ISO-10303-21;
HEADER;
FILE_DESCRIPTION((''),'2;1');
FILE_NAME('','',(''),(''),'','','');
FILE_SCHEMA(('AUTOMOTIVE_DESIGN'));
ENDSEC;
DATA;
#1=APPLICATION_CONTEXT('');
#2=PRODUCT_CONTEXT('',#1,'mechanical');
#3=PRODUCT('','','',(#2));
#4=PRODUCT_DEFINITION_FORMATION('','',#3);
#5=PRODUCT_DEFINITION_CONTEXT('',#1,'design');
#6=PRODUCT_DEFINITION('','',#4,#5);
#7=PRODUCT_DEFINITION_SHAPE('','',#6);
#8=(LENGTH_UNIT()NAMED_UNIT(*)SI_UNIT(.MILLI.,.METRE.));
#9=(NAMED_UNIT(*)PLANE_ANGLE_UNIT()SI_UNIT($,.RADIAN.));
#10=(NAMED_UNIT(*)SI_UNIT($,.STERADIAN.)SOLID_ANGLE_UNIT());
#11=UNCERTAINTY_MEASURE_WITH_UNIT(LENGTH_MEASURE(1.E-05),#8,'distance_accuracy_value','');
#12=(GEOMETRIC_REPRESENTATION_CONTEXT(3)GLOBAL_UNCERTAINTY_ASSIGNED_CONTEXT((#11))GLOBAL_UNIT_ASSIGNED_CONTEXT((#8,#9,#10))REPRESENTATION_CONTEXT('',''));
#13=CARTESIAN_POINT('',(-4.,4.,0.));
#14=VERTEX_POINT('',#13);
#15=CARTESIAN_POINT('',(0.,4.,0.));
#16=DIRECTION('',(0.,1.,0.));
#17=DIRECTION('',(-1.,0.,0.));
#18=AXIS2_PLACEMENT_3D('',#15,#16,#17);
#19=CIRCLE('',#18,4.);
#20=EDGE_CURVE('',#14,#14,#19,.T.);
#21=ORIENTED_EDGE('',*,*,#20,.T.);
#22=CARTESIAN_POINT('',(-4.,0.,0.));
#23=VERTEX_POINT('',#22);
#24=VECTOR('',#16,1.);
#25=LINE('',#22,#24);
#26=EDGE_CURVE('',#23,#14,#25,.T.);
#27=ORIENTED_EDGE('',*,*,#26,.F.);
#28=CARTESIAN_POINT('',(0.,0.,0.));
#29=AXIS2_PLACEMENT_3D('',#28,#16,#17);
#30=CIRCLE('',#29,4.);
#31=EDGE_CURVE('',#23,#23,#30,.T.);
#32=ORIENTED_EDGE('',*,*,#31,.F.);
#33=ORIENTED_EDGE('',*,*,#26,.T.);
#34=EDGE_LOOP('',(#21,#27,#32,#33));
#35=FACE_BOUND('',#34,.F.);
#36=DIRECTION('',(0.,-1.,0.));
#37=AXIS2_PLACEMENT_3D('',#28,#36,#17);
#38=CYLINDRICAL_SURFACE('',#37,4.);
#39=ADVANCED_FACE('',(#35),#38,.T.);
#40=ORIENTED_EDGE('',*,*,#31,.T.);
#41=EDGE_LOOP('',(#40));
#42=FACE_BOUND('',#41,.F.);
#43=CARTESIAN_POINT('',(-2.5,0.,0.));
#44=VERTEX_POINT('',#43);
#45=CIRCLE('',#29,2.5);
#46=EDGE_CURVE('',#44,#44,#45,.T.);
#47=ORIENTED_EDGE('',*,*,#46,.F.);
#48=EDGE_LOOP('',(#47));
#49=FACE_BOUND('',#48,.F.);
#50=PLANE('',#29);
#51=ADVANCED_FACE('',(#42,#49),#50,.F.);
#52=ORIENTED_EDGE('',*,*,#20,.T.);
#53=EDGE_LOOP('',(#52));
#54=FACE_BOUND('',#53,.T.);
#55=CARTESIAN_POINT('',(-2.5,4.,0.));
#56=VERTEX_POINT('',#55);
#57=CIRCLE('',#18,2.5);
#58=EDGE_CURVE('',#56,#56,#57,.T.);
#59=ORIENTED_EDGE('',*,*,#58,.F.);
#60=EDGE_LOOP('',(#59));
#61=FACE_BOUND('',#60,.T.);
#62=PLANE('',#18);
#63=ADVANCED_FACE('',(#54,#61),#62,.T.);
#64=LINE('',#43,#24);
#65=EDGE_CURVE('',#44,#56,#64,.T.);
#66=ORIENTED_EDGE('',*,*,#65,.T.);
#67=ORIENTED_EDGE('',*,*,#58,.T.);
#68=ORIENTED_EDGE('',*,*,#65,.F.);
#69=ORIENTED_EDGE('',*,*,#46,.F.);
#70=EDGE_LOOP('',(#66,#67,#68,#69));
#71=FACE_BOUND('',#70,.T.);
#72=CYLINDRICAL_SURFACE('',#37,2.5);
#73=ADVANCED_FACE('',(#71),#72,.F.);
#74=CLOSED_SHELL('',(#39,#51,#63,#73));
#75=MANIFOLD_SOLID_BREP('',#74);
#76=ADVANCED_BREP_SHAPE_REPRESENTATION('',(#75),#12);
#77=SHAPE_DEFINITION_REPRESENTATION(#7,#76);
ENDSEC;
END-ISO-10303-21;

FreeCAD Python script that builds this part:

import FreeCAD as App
import Part
import Sketcher
Q = App.Units.Quantity

doc = App.newDocument("Part")
body = doc.addObject("PartDesign::Body", "Body")

sketch1 = body.newObject("Sketcher::SketchObject", "Sketch")
sketch1.AttachmentSupport = (doc.getObject("XZ_Plane"), [""])
sketch1.MapMode = "FlatFace"
sketch1.addGeometry([
    Part.Circle(App.Vector(0, 0, 0), App.Vector(0, 0, 1), 4),
    Part.Circle(App.Vector(0, 0, 0), App.Vector(0, 0, 1), 2.5),
], False)
sketch1.addConstraint([
    Sketcher.Constraint("Coincident", 0, 3, -1, 1),
    Sketcher.Constraint("Coincident", 1, 3, -1, 1),
    Sketcher.Constraint("Diameter", 0, Q("8 mm")),
    Sketcher.Constraint("Diameter", 1, Q("5 mm")),
])
pad1 = body.newObject("PartDesign::Pad", "Pad")
pad1.Profile = sketch1
pad1.Length = 4
pad1.Reversed = True

doc.recompute()
